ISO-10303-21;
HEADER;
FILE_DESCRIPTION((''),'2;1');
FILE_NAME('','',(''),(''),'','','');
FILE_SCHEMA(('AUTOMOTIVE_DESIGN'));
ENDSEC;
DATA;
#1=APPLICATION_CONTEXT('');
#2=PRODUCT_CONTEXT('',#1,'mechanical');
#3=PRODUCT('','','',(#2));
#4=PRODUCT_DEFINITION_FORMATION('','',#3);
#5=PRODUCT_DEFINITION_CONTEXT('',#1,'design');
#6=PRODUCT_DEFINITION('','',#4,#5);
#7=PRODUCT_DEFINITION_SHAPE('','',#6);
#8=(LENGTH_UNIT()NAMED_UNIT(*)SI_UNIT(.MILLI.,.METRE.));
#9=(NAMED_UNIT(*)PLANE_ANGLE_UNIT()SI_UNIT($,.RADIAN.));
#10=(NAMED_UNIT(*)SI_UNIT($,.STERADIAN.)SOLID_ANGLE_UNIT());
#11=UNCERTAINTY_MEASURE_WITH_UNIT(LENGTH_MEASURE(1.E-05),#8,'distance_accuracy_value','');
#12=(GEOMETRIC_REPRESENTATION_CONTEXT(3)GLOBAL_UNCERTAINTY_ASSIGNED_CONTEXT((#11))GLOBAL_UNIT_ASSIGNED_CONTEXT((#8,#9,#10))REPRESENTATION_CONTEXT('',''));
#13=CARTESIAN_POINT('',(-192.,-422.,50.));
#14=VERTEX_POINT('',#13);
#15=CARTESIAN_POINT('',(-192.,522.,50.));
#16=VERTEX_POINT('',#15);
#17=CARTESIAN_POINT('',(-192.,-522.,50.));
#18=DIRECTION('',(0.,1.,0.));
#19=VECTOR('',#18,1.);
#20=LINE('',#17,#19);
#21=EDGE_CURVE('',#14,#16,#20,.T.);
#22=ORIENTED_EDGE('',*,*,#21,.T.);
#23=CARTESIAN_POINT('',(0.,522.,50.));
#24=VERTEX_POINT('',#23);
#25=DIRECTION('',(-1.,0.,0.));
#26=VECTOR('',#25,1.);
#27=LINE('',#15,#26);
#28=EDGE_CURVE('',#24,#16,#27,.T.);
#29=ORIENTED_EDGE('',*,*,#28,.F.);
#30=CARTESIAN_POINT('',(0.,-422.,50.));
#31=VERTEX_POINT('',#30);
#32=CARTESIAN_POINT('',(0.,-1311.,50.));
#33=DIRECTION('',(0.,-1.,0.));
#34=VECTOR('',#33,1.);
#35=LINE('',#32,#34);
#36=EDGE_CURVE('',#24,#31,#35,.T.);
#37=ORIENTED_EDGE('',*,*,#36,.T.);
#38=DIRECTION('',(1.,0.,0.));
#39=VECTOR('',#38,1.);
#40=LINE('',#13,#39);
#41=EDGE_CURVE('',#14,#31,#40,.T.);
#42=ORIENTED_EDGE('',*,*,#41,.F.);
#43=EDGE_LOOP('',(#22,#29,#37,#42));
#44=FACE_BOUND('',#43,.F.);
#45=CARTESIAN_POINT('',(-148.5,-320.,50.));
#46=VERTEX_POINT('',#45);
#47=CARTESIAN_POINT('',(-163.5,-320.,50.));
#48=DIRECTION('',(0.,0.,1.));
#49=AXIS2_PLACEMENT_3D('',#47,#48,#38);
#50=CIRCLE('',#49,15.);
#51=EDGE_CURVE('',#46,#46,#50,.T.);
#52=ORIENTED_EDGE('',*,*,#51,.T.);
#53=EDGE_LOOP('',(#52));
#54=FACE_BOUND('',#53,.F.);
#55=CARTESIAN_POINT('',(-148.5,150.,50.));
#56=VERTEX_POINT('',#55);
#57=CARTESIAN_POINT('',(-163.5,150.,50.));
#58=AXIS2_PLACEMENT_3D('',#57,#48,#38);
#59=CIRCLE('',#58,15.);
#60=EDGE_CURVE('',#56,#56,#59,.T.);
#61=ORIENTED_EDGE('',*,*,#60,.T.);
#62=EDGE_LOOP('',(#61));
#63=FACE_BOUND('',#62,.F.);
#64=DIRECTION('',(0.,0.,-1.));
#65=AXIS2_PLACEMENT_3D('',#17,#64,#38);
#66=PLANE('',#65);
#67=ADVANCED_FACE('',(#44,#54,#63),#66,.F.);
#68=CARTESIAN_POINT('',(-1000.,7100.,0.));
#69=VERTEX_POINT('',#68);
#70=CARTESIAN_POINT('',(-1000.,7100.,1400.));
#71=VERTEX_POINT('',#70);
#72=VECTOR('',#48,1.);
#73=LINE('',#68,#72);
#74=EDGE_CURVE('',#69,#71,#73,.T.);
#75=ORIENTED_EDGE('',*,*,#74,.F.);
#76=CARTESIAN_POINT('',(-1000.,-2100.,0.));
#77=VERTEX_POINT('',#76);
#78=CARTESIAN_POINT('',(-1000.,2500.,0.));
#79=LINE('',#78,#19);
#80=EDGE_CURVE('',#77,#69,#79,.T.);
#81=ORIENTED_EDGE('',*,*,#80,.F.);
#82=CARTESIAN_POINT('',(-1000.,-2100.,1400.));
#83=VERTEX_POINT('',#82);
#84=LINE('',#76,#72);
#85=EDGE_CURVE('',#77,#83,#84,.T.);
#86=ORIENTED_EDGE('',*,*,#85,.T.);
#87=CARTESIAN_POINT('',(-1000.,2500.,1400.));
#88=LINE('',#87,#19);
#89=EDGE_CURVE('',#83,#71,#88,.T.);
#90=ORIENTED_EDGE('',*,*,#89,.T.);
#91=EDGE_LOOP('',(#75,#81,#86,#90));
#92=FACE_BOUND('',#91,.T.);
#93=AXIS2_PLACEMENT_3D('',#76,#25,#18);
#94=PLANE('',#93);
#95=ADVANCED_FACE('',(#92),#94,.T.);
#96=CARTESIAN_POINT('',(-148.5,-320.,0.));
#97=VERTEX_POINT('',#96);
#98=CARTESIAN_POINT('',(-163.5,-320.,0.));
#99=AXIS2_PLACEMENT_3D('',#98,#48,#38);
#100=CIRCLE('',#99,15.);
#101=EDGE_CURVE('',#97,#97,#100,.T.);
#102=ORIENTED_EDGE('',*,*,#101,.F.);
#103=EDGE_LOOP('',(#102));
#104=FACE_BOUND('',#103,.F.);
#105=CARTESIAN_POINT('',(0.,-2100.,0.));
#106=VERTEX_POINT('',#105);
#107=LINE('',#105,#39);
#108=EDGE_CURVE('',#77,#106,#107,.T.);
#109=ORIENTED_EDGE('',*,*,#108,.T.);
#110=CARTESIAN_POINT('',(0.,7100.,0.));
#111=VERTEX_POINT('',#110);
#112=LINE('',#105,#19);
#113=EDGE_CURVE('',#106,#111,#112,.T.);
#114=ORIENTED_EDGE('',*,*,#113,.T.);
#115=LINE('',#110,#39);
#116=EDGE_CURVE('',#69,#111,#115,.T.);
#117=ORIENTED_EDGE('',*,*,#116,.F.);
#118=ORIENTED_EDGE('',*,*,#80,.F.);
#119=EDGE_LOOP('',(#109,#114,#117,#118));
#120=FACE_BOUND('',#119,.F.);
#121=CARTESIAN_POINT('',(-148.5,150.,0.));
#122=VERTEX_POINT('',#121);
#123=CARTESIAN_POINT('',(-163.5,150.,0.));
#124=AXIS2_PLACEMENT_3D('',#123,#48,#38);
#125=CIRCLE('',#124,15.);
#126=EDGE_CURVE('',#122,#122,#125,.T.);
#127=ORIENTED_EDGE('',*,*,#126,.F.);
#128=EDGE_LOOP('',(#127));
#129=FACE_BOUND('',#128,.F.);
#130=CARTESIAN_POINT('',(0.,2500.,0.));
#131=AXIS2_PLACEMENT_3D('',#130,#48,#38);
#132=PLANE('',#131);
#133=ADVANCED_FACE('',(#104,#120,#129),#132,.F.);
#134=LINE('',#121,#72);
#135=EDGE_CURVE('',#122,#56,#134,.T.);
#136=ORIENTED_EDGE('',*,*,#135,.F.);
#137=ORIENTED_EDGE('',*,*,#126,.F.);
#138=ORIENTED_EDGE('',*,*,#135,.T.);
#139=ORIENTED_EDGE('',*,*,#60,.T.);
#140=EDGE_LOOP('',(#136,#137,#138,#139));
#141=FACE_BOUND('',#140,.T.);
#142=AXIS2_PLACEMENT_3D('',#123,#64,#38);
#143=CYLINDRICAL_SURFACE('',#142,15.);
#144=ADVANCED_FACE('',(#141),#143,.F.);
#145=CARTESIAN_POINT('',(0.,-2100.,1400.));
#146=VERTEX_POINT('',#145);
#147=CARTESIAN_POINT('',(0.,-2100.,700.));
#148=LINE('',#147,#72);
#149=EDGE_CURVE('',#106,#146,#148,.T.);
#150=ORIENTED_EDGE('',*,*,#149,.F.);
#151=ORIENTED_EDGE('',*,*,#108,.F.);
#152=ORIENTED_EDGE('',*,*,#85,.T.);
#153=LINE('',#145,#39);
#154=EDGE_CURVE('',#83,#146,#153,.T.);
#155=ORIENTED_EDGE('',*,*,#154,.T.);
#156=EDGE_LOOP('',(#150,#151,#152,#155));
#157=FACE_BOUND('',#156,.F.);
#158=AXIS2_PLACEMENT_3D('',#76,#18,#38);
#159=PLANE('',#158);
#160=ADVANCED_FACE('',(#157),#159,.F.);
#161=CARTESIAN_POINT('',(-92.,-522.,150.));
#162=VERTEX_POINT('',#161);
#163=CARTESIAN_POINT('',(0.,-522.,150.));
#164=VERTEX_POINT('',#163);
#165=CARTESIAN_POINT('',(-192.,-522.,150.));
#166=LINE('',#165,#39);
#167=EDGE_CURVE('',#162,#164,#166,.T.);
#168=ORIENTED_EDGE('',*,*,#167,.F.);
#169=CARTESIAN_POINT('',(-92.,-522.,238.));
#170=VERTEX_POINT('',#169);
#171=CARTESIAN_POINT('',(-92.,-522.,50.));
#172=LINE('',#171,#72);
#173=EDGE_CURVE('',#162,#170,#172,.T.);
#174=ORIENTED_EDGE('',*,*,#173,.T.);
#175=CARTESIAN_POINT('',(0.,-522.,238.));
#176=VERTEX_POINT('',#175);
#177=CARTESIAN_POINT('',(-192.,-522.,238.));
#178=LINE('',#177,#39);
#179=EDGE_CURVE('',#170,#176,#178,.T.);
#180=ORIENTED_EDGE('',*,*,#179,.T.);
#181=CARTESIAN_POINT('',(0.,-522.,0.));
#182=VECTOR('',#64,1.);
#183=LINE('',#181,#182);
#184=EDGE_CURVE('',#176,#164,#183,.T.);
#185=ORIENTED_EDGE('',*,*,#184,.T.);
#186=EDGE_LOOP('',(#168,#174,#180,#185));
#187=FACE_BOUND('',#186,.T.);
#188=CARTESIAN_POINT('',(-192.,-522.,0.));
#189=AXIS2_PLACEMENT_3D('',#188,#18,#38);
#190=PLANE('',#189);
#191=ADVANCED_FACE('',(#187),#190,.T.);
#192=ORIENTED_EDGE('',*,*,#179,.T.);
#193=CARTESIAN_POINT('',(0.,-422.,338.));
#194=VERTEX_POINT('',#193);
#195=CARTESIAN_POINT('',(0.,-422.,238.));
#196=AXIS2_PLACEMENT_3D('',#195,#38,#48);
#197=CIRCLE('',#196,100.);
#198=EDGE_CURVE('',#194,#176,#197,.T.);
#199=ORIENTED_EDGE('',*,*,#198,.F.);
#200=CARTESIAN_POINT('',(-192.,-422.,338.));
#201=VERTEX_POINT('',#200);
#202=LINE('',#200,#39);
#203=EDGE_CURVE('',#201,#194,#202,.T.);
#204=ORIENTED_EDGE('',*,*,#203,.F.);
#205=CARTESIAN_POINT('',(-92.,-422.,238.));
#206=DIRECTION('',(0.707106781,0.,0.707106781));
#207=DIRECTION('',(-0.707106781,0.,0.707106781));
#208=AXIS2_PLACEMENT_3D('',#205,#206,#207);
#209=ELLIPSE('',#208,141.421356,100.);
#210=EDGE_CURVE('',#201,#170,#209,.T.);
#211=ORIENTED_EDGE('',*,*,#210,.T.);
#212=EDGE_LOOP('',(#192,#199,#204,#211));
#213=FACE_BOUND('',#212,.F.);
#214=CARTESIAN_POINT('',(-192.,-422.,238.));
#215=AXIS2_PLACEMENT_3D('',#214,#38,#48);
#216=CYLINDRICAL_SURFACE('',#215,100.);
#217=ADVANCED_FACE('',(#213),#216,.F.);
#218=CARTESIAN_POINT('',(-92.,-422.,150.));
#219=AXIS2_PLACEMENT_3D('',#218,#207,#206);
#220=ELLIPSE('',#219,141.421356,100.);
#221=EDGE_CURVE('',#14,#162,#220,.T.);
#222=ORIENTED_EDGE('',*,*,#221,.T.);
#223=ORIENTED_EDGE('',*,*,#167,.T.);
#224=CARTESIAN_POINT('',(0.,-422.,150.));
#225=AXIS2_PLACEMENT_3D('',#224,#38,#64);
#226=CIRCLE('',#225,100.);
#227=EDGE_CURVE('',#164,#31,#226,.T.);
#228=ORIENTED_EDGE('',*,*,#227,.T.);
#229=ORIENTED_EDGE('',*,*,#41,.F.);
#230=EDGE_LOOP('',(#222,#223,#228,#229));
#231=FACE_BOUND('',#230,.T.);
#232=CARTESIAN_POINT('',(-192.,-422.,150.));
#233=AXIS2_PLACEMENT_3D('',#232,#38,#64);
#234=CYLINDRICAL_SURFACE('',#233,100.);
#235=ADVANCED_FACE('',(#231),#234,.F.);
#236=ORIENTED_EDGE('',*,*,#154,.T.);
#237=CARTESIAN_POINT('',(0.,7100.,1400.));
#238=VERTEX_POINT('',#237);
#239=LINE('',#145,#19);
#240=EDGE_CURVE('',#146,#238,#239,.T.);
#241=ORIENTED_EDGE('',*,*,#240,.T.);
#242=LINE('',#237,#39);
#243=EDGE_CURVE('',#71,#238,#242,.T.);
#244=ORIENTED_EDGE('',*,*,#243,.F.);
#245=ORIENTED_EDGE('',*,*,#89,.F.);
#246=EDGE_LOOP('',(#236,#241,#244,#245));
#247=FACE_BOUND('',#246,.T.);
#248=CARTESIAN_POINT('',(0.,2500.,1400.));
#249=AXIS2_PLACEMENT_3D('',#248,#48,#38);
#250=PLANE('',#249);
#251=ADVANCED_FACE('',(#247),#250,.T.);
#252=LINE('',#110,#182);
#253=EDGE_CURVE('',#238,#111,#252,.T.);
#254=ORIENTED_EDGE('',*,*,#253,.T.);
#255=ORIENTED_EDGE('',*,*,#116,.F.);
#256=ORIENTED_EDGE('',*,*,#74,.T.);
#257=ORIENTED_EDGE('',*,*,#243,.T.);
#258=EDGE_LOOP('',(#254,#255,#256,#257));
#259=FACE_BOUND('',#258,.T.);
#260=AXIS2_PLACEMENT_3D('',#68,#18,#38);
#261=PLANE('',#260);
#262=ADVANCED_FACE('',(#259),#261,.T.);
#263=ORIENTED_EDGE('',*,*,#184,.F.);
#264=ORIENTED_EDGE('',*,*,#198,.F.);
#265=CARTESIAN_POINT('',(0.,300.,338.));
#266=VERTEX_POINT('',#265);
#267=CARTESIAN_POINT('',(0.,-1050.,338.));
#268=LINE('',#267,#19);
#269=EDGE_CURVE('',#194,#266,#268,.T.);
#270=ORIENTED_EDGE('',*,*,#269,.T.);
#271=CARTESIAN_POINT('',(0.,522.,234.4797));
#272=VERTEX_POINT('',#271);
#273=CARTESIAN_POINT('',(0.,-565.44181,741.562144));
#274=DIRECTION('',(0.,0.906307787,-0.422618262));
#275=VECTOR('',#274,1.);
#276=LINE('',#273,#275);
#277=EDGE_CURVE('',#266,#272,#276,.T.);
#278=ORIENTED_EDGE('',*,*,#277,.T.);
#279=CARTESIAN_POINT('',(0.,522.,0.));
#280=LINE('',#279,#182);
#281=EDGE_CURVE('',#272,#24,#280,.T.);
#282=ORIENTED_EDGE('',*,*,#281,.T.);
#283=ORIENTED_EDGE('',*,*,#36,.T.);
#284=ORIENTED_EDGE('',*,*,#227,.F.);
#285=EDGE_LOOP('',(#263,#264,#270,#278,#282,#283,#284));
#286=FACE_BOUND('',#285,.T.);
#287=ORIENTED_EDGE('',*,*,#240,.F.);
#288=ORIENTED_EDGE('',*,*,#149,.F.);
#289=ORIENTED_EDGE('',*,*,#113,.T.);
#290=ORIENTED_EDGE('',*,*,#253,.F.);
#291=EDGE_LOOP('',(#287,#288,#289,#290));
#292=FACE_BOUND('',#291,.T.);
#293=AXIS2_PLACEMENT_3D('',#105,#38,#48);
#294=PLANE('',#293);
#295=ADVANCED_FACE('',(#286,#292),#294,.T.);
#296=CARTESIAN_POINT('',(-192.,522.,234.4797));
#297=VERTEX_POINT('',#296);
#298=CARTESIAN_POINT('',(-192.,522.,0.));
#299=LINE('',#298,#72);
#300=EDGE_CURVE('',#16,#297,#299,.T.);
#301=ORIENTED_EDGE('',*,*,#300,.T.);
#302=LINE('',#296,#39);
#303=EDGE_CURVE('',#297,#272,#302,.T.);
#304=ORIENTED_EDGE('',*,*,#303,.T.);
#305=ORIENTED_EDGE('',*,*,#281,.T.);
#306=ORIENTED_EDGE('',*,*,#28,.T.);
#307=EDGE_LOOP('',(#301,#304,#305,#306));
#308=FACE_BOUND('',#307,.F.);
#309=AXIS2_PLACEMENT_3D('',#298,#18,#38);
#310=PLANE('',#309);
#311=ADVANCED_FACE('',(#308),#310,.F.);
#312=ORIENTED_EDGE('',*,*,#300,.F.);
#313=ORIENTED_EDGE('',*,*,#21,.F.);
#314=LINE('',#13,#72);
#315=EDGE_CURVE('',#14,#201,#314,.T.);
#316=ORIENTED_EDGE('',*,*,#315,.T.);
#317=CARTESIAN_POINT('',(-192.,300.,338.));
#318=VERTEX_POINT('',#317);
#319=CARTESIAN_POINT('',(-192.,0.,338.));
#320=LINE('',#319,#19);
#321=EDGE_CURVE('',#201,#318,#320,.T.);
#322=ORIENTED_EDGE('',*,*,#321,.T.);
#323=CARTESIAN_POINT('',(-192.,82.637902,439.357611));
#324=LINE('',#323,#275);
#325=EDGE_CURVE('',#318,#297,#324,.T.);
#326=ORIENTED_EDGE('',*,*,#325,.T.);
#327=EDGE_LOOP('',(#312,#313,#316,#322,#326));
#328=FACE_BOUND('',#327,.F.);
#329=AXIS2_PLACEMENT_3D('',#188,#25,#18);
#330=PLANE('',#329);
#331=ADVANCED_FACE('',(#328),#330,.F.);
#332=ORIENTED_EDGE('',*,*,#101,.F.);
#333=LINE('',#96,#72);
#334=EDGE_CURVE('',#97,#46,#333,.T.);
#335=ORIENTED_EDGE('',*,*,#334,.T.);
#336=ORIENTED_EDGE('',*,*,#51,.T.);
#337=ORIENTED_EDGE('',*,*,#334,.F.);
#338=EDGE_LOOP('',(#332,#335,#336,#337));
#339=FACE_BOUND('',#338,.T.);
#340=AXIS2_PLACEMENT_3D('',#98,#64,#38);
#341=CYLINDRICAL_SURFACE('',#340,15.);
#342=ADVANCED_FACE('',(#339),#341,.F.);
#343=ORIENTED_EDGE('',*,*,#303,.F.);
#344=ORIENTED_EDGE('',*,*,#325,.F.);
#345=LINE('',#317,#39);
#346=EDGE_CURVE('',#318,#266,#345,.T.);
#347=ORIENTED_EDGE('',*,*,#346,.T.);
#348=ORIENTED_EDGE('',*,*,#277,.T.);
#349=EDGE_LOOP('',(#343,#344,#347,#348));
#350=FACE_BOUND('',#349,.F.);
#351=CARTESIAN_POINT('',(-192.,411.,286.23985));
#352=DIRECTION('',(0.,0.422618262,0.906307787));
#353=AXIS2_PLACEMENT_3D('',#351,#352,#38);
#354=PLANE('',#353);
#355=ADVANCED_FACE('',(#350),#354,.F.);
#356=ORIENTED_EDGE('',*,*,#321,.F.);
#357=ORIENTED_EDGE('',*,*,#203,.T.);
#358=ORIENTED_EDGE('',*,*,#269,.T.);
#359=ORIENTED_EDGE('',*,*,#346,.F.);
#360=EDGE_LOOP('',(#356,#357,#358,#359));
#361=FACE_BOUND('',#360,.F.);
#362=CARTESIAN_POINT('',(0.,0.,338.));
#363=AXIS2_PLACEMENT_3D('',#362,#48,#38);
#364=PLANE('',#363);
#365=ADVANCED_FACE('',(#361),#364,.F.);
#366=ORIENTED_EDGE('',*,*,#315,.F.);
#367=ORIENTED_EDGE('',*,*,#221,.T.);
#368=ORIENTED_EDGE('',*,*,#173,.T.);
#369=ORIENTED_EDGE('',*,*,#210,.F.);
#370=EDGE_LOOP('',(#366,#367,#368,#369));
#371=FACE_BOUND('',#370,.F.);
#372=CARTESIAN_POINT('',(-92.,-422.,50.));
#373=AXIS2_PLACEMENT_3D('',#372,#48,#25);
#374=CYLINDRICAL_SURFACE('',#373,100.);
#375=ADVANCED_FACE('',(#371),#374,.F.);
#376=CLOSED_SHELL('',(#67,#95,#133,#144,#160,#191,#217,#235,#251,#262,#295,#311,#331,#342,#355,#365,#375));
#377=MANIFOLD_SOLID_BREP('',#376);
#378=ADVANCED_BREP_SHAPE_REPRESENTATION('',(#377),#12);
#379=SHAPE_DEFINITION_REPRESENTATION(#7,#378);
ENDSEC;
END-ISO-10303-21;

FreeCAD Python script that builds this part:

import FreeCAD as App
import Part
import Sketcher


def edges_at(feature, points):
    """Names of the edges that pass closest to the given points."""
    edges = feature.Shape.Edges
    near = lambda p: min(range(len(edges)), key=lambda i: edges[i].distToShape(Part.Vertex(*p))[0])
    return sorted({f"Edge{near(p) + 1}" for p in points})


def add_polygon(sketch, points):
    """Adds a closed chain of lines whose ends are joined by coincident constraints."""
    first, n = sketch.GeometryCount, len(points)
    for a, b in zip(points, points[1:] + points[:1]):
        sketch.addGeometry(Part.LineSegment(App.Vector(*a, 0), App.Vector(*b, 0)), False)
    for i in range(n):
        sketch.addConstraint(Sketcher.Constraint("Coincident", first + i, 2, first + (i + 1) % n, 1))

doc = App.newDocument("Part")
body = doc.addObject("PartDesign::Body", "Body")

# Sketch on XY plane
sketch1 = doc.addObject("Sketcher::SketchObject", "Sketch")
body.addObject(sketch1)
sketch1.AttachmentSupport = (doc.XY_Plane, [""])
sketch1.MapMode = "FlatFace"
add_polygon(sketch1, [(-192, 522), (-192, -522), (192, -522), (192, 522)])  # lines 0-3
sketch1.addConstraint([
    Sketcher.Constraint("Vertical", 0),
    Sketcher.Constraint("Horizontal", 1),
    Sketcher.Constraint("Vertical", 2),
    Sketcher.Constraint("Horizontal", 3),
    Sketcher.Constraint("Symmetric", 0, 2, 2, 2, -1, 1),
    Sketcher.Constraint("DistanceX", 1, 1, 1, 2, 384.0),
    Sketcher.Constraint("DistanceY", 0, 2, 0, 1, 1044.0),
])
pad1 = doc.addObject("PartDesign::Pad", "Pad")
body.addObject(pad1)
pad1.Profile = sketch1
pad1.Length = 338

# Sketch on XZ plane
sketch2 = doc.addObject("Sketcher::SketchObject", "Sketch001")
body.addObject(sketch2)
sketch2.AttachmentSupport = (doc.XZ_Plane, [""])
sketch2.MapMode = "FlatFace"
sketch2.AttachmentOffset = App.Placement(App.Vector(0, 0, 522), App.Rotation())
add_polygon(sketch2, [(-192, 50), (-192, 0), (192, 0), (192, 50)])  # lines 0-3
sketch2.addConstraint([
    Sketcher.Constraint("Vertical", 0),
    Sketcher.Constraint("Horizontal", 1),
    Sketcher.Constraint("Vertical", 2),
    Sketcher.Constraint("Horizontal", 3),
    Sketcher.Constraint("Symmetric", 0, 2, 1, 2, -1, 1),
    Sketcher.Constraint("DistanceX", 1, 1, 1, 2, 384.0),
    Sketcher.Constraint("DistanceY", 0, 2, 0, 1, 50.0),
])
pocket1 = doc.addObject("PartDesign::Pocket", "Pocket")
body.addObject(pocket1)
pocket1.Profile = sketch2
pocket1.Type = "ThroughAll"
doc.recompute()

fillet = doc.addObject("PartDesign::Fillet", "Fillet")
body.addObject(fillet)
fillet.Base = (pocket1, edges_at(pocket1, [
    (-192, -522, 194),
    (0, -522, 338),
    (192, -522, 194),
    (0, -522, 50),
]))
fillet.Radius = 100
doc.recompute()

chamfer = doc.addObject("PartDesign::Chamfer", "Chamfer")
body.addObject(chamfer)
chamfer.Base = (fillet, edges_at(fillet, [(0, 522, 338)]))
chamfer.ChamferType = "Two distances"
chamfer.Size = 222
chamfer.Size2 = 103.5203
chamfer.FlipDirection = True

# Sketch on XY plane
sketch3 = doc.addObject("Sketcher::SketchObject", "Sketch002")
body.addObject(sketch3)
sketch3.AttachmentSupport = (doc.XY_Plane, [""])
sketch3.MapMode = "FlatFace"
sketch3.addGeometry([
    Part.Circle(App.Vector(164, -320, 0), App.Vector(0, 0, 1), 15),
    Part.Circle(App.Vector(164, 150, 0), App.Vector(0, 0, 1), 15),
    Part.Circle(App.Vector(-164, 150, 0), App.Vector(0, 0, 1), 15),
    Part.Circle(App.Vector(-164, -320, 0), App.Vector(0, 0, 1), 15),
], False)
sketch3.addConstraint([
    Sketcher.Constraint("Equal", 0, 1),
    Sketcher.Constraint("Equal", 1, 2),
    Sketcher.Constraint("Equal", 2, 3),
    Sketcher.Constraint("Symmetric", 1, 3, 2, 3, -2),
    Sketcher.Constraint("Symmetric", 0, 3, 3, 3, -2),
    Sketcher.Constraint("Vertical", 0, 3, 1, 3),
    Sketcher.Constraint("Diameter", 0, 30.0),
    Sketcher.Constraint("DistanceY", 0, 3, -1, 1, 320.0),
    Sketcher.Constraint("DistanceY", -1, 1, 1, 3, 150.0),
    Sketcher.Constraint("DistanceX", 2, 3, 1, 3, 327.0),
])
pad2 = doc.addObject("PartDesign::Pad", "Pad001")
body.addObject(pad2)
pad2.Profile = sketch3
pad2.Type = "UpToLast"
body2 = doc.addObject("PartDesign::Body", "Body001")

# Sketch on XY plane
sketch4 = doc.addObject("Sketcher::SketchObject", "Sketch003")
body2.addObject(sketch4)
sketch4.AttachmentSupport = (doc.getObject("XY_Plane001"), [""])
sketch4.MapMode = "FlatFace"
add_polygon(sketch4, [(-1000, 7100), (-1000, -2100), (1000, -2100), (1000, 7100)])  # lines 0-3
sketch4.addConstraint([
    Sketcher.Constraint("Vertical", 0),
    Sketcher.Constraint("Horizontal", 1),
    Sketcher.Constraint("Vertical", 2),
    Sketcher.Constraint("Horizontal", 3),
    Sketcher.Constraint("DistanceX", 1, 1, 1, 2, 2000.0),
    Sketcher.Constraint("DistanceY", 0, 2, 0, 1, 9200.0),
    Sketcher.Constraint("DistanceX", 0, 2, -1, 1, 1000.0),
    Sketcher.Constraint("DistanceY", 0, 2, -1, 1, 2100.0),
])
pad3 = doc.addObject("PartDesign::Pad", "Pad002")
body2.addObject(pad3)
pad3.Profile = sketch4
pad3.Length = 1400
doc.recompute()

boolean = doc.addObject("PartDesign::Boolean", "Boolean")
body2.addObject(boolean)
boolean.Type = "Cut"
boolean.addObjects([body])

# Sketch on XZ plane
sketch5 = doc.addObject("Sketcher::SketchObject", "Sketch004")
body2.addObject(sketch5)
sketch5.AttachmentSupport = (doc.getObject("XZ_Plane001"), [""])
sketch5.MapMode = "FlatFace"
sketch5.AttachmentOffset = App.Placement(App.Vector(0, 0, 2100), App.Rotation())
add_polygon(sketch5, [(0, 1400), (0, 0), (1000, 0), (1000, 1400)])  # lines 0-3
sketch5.addConstraint([
    Sketcher.Constraint("Vertical", 0),
    Sketcher.Constraint("Horizontal", 1),
    Sketcher.Constraint("Vertical", 2),
    Sketcher.Constraint("Horizontal", 3),
    Sketcher.Constraint("Coincident", 0, 2, -1, 1),
    Sketcher.Constraint("DistanceX", 1, 1, 1, 2, 1000.0),
    Sketcher.Constraint("DistanceY", 0, 2, 0, 1, 1400.0),
])
pocket2 = doc.addObject("PartDesign::Pocket", "Pocket001")
body2.addObject(pocket2)
pocket2.Profile = sketch5
pocket2.Type = "ThroughAll"

doc.recompute()
